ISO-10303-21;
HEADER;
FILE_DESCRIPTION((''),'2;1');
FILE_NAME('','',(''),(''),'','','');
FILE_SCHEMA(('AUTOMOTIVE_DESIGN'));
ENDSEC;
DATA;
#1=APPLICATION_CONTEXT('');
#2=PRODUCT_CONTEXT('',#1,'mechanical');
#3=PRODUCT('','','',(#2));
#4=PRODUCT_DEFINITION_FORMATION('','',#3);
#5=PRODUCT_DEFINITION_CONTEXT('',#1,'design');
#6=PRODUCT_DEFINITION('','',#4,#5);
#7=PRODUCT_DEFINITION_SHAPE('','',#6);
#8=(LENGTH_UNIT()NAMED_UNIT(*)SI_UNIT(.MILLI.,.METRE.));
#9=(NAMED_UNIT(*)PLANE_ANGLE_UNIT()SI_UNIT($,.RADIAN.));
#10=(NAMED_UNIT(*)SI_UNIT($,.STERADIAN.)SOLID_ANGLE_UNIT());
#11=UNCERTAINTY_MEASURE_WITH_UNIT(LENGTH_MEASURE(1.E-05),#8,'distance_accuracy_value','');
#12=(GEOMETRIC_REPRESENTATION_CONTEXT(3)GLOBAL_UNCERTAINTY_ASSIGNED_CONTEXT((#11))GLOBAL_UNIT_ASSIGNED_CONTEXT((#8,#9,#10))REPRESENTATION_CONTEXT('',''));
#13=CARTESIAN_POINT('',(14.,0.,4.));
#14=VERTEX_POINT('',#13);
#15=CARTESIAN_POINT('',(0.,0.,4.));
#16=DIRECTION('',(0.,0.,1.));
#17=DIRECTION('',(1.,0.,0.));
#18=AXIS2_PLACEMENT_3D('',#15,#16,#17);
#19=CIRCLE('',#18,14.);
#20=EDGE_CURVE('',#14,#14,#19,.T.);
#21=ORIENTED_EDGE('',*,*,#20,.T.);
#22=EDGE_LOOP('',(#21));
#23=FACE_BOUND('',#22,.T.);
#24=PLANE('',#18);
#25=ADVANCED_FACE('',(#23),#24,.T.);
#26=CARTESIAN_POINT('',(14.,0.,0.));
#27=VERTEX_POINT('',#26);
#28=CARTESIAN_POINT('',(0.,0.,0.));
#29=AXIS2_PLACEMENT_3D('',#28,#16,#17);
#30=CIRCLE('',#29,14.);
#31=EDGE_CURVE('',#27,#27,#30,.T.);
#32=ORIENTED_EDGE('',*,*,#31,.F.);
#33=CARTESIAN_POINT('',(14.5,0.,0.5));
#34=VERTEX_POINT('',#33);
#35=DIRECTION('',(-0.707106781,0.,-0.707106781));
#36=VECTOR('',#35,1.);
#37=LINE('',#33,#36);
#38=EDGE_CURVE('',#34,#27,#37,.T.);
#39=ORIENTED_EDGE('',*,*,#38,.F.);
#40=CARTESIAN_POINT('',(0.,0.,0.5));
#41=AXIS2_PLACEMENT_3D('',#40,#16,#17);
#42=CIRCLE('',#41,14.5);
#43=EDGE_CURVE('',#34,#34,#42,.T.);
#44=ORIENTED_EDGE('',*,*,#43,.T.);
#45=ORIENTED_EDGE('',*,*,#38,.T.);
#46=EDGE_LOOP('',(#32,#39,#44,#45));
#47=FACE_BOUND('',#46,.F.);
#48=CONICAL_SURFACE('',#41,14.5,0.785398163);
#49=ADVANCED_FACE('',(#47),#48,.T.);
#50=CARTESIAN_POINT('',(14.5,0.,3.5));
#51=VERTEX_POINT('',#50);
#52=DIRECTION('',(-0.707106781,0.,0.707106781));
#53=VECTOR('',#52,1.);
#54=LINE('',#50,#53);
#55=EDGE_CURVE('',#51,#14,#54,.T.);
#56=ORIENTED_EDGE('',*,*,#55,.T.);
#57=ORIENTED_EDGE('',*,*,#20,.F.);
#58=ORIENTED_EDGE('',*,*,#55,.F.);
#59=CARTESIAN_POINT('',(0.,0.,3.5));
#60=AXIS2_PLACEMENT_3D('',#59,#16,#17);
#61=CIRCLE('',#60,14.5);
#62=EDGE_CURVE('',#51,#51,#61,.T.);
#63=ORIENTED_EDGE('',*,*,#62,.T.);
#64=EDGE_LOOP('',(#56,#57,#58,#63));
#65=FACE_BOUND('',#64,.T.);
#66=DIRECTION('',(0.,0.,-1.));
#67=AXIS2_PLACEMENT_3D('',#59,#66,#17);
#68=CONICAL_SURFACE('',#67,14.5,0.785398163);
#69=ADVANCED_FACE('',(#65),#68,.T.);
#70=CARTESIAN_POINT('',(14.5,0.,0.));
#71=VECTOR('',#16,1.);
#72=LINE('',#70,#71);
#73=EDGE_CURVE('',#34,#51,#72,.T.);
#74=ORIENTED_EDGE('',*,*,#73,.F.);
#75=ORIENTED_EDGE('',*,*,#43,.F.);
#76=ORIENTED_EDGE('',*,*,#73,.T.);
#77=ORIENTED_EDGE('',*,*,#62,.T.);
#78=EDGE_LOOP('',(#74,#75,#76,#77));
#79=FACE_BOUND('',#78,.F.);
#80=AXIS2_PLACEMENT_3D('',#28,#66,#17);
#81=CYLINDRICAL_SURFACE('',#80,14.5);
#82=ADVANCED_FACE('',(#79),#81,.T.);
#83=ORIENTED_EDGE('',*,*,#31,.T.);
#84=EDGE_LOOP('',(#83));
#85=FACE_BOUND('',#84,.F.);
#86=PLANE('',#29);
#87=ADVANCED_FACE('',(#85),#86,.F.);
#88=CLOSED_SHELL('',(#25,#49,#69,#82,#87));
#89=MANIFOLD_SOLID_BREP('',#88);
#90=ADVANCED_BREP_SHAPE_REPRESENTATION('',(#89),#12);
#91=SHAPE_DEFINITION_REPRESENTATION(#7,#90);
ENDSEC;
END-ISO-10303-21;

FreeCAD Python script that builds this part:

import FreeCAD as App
import Part
import Sketcher


def edges_at(feature, points):
    """Names of the edges that pass closest to the given points."""
    edges = feature.Shape.Edges
    near = lambda p: min(range(len(edges)), key=lambda i: edges[i].distToShape(Part.Vertex(*p))[0])
    return sorted({f"Edge{near(p) + 1}" for p in points})

doc = App.newDocument("Part")
params = doc.addObject("Spreadsheet::Sheet", "Params")
for row, (alias, value) in enumerate([
    ("sketch1_diameter", "29 mm"),
    ("pad1_length", "4 mm"),
    ("chamfer_size", "0.5 mm"),
], start=1):
    params.set(f"A{row}", alias)
    params.set(f"B{row}", "=" + value)
    params.setAlias(f"B{row}", alias)

body = doc.addObject("PartDesign::Body", "Body")

# Sketch on XY plane
sketch1 = body.newObject("Sketcher::SketchObject", "Sketch")
sketch1.AttachmentSupport = (doc.getObject("XY_Plane"), [""])
sketch1.MapMode = "FlatFace"
sketch1.addGeometry(Part.Circle(App.Vector(0, 0, 0), App.Vector(0, 0, 1), 14), False)
sketch1.addConstraint(Sketcher.Constraint("Coincident", 0, 3, -1, 1))
sketch1.addConstraint(Sketcher.Constraint("Diameter", 0, 29.0))
sketch1.setExpression("Constraints[1]", "Params.sketch1_diameter")
pad1 = body.newObject("PartDesign::Pad", "Pad")
pad1.Profile = sketch1
pad1.setExpression("Length", "Params.pad1_length")
doc.recompute()

chamfer = body.newObject("PartDesign::Chamfer", "Chamfer")
chamfer.Base = (pad1, edges_at(pad1, [(-14.5, 0, 4), (-14.5, 0, 0)]))
chamfer.setExpression("Size", "Params.chamfer_size")

doc.recompute()
